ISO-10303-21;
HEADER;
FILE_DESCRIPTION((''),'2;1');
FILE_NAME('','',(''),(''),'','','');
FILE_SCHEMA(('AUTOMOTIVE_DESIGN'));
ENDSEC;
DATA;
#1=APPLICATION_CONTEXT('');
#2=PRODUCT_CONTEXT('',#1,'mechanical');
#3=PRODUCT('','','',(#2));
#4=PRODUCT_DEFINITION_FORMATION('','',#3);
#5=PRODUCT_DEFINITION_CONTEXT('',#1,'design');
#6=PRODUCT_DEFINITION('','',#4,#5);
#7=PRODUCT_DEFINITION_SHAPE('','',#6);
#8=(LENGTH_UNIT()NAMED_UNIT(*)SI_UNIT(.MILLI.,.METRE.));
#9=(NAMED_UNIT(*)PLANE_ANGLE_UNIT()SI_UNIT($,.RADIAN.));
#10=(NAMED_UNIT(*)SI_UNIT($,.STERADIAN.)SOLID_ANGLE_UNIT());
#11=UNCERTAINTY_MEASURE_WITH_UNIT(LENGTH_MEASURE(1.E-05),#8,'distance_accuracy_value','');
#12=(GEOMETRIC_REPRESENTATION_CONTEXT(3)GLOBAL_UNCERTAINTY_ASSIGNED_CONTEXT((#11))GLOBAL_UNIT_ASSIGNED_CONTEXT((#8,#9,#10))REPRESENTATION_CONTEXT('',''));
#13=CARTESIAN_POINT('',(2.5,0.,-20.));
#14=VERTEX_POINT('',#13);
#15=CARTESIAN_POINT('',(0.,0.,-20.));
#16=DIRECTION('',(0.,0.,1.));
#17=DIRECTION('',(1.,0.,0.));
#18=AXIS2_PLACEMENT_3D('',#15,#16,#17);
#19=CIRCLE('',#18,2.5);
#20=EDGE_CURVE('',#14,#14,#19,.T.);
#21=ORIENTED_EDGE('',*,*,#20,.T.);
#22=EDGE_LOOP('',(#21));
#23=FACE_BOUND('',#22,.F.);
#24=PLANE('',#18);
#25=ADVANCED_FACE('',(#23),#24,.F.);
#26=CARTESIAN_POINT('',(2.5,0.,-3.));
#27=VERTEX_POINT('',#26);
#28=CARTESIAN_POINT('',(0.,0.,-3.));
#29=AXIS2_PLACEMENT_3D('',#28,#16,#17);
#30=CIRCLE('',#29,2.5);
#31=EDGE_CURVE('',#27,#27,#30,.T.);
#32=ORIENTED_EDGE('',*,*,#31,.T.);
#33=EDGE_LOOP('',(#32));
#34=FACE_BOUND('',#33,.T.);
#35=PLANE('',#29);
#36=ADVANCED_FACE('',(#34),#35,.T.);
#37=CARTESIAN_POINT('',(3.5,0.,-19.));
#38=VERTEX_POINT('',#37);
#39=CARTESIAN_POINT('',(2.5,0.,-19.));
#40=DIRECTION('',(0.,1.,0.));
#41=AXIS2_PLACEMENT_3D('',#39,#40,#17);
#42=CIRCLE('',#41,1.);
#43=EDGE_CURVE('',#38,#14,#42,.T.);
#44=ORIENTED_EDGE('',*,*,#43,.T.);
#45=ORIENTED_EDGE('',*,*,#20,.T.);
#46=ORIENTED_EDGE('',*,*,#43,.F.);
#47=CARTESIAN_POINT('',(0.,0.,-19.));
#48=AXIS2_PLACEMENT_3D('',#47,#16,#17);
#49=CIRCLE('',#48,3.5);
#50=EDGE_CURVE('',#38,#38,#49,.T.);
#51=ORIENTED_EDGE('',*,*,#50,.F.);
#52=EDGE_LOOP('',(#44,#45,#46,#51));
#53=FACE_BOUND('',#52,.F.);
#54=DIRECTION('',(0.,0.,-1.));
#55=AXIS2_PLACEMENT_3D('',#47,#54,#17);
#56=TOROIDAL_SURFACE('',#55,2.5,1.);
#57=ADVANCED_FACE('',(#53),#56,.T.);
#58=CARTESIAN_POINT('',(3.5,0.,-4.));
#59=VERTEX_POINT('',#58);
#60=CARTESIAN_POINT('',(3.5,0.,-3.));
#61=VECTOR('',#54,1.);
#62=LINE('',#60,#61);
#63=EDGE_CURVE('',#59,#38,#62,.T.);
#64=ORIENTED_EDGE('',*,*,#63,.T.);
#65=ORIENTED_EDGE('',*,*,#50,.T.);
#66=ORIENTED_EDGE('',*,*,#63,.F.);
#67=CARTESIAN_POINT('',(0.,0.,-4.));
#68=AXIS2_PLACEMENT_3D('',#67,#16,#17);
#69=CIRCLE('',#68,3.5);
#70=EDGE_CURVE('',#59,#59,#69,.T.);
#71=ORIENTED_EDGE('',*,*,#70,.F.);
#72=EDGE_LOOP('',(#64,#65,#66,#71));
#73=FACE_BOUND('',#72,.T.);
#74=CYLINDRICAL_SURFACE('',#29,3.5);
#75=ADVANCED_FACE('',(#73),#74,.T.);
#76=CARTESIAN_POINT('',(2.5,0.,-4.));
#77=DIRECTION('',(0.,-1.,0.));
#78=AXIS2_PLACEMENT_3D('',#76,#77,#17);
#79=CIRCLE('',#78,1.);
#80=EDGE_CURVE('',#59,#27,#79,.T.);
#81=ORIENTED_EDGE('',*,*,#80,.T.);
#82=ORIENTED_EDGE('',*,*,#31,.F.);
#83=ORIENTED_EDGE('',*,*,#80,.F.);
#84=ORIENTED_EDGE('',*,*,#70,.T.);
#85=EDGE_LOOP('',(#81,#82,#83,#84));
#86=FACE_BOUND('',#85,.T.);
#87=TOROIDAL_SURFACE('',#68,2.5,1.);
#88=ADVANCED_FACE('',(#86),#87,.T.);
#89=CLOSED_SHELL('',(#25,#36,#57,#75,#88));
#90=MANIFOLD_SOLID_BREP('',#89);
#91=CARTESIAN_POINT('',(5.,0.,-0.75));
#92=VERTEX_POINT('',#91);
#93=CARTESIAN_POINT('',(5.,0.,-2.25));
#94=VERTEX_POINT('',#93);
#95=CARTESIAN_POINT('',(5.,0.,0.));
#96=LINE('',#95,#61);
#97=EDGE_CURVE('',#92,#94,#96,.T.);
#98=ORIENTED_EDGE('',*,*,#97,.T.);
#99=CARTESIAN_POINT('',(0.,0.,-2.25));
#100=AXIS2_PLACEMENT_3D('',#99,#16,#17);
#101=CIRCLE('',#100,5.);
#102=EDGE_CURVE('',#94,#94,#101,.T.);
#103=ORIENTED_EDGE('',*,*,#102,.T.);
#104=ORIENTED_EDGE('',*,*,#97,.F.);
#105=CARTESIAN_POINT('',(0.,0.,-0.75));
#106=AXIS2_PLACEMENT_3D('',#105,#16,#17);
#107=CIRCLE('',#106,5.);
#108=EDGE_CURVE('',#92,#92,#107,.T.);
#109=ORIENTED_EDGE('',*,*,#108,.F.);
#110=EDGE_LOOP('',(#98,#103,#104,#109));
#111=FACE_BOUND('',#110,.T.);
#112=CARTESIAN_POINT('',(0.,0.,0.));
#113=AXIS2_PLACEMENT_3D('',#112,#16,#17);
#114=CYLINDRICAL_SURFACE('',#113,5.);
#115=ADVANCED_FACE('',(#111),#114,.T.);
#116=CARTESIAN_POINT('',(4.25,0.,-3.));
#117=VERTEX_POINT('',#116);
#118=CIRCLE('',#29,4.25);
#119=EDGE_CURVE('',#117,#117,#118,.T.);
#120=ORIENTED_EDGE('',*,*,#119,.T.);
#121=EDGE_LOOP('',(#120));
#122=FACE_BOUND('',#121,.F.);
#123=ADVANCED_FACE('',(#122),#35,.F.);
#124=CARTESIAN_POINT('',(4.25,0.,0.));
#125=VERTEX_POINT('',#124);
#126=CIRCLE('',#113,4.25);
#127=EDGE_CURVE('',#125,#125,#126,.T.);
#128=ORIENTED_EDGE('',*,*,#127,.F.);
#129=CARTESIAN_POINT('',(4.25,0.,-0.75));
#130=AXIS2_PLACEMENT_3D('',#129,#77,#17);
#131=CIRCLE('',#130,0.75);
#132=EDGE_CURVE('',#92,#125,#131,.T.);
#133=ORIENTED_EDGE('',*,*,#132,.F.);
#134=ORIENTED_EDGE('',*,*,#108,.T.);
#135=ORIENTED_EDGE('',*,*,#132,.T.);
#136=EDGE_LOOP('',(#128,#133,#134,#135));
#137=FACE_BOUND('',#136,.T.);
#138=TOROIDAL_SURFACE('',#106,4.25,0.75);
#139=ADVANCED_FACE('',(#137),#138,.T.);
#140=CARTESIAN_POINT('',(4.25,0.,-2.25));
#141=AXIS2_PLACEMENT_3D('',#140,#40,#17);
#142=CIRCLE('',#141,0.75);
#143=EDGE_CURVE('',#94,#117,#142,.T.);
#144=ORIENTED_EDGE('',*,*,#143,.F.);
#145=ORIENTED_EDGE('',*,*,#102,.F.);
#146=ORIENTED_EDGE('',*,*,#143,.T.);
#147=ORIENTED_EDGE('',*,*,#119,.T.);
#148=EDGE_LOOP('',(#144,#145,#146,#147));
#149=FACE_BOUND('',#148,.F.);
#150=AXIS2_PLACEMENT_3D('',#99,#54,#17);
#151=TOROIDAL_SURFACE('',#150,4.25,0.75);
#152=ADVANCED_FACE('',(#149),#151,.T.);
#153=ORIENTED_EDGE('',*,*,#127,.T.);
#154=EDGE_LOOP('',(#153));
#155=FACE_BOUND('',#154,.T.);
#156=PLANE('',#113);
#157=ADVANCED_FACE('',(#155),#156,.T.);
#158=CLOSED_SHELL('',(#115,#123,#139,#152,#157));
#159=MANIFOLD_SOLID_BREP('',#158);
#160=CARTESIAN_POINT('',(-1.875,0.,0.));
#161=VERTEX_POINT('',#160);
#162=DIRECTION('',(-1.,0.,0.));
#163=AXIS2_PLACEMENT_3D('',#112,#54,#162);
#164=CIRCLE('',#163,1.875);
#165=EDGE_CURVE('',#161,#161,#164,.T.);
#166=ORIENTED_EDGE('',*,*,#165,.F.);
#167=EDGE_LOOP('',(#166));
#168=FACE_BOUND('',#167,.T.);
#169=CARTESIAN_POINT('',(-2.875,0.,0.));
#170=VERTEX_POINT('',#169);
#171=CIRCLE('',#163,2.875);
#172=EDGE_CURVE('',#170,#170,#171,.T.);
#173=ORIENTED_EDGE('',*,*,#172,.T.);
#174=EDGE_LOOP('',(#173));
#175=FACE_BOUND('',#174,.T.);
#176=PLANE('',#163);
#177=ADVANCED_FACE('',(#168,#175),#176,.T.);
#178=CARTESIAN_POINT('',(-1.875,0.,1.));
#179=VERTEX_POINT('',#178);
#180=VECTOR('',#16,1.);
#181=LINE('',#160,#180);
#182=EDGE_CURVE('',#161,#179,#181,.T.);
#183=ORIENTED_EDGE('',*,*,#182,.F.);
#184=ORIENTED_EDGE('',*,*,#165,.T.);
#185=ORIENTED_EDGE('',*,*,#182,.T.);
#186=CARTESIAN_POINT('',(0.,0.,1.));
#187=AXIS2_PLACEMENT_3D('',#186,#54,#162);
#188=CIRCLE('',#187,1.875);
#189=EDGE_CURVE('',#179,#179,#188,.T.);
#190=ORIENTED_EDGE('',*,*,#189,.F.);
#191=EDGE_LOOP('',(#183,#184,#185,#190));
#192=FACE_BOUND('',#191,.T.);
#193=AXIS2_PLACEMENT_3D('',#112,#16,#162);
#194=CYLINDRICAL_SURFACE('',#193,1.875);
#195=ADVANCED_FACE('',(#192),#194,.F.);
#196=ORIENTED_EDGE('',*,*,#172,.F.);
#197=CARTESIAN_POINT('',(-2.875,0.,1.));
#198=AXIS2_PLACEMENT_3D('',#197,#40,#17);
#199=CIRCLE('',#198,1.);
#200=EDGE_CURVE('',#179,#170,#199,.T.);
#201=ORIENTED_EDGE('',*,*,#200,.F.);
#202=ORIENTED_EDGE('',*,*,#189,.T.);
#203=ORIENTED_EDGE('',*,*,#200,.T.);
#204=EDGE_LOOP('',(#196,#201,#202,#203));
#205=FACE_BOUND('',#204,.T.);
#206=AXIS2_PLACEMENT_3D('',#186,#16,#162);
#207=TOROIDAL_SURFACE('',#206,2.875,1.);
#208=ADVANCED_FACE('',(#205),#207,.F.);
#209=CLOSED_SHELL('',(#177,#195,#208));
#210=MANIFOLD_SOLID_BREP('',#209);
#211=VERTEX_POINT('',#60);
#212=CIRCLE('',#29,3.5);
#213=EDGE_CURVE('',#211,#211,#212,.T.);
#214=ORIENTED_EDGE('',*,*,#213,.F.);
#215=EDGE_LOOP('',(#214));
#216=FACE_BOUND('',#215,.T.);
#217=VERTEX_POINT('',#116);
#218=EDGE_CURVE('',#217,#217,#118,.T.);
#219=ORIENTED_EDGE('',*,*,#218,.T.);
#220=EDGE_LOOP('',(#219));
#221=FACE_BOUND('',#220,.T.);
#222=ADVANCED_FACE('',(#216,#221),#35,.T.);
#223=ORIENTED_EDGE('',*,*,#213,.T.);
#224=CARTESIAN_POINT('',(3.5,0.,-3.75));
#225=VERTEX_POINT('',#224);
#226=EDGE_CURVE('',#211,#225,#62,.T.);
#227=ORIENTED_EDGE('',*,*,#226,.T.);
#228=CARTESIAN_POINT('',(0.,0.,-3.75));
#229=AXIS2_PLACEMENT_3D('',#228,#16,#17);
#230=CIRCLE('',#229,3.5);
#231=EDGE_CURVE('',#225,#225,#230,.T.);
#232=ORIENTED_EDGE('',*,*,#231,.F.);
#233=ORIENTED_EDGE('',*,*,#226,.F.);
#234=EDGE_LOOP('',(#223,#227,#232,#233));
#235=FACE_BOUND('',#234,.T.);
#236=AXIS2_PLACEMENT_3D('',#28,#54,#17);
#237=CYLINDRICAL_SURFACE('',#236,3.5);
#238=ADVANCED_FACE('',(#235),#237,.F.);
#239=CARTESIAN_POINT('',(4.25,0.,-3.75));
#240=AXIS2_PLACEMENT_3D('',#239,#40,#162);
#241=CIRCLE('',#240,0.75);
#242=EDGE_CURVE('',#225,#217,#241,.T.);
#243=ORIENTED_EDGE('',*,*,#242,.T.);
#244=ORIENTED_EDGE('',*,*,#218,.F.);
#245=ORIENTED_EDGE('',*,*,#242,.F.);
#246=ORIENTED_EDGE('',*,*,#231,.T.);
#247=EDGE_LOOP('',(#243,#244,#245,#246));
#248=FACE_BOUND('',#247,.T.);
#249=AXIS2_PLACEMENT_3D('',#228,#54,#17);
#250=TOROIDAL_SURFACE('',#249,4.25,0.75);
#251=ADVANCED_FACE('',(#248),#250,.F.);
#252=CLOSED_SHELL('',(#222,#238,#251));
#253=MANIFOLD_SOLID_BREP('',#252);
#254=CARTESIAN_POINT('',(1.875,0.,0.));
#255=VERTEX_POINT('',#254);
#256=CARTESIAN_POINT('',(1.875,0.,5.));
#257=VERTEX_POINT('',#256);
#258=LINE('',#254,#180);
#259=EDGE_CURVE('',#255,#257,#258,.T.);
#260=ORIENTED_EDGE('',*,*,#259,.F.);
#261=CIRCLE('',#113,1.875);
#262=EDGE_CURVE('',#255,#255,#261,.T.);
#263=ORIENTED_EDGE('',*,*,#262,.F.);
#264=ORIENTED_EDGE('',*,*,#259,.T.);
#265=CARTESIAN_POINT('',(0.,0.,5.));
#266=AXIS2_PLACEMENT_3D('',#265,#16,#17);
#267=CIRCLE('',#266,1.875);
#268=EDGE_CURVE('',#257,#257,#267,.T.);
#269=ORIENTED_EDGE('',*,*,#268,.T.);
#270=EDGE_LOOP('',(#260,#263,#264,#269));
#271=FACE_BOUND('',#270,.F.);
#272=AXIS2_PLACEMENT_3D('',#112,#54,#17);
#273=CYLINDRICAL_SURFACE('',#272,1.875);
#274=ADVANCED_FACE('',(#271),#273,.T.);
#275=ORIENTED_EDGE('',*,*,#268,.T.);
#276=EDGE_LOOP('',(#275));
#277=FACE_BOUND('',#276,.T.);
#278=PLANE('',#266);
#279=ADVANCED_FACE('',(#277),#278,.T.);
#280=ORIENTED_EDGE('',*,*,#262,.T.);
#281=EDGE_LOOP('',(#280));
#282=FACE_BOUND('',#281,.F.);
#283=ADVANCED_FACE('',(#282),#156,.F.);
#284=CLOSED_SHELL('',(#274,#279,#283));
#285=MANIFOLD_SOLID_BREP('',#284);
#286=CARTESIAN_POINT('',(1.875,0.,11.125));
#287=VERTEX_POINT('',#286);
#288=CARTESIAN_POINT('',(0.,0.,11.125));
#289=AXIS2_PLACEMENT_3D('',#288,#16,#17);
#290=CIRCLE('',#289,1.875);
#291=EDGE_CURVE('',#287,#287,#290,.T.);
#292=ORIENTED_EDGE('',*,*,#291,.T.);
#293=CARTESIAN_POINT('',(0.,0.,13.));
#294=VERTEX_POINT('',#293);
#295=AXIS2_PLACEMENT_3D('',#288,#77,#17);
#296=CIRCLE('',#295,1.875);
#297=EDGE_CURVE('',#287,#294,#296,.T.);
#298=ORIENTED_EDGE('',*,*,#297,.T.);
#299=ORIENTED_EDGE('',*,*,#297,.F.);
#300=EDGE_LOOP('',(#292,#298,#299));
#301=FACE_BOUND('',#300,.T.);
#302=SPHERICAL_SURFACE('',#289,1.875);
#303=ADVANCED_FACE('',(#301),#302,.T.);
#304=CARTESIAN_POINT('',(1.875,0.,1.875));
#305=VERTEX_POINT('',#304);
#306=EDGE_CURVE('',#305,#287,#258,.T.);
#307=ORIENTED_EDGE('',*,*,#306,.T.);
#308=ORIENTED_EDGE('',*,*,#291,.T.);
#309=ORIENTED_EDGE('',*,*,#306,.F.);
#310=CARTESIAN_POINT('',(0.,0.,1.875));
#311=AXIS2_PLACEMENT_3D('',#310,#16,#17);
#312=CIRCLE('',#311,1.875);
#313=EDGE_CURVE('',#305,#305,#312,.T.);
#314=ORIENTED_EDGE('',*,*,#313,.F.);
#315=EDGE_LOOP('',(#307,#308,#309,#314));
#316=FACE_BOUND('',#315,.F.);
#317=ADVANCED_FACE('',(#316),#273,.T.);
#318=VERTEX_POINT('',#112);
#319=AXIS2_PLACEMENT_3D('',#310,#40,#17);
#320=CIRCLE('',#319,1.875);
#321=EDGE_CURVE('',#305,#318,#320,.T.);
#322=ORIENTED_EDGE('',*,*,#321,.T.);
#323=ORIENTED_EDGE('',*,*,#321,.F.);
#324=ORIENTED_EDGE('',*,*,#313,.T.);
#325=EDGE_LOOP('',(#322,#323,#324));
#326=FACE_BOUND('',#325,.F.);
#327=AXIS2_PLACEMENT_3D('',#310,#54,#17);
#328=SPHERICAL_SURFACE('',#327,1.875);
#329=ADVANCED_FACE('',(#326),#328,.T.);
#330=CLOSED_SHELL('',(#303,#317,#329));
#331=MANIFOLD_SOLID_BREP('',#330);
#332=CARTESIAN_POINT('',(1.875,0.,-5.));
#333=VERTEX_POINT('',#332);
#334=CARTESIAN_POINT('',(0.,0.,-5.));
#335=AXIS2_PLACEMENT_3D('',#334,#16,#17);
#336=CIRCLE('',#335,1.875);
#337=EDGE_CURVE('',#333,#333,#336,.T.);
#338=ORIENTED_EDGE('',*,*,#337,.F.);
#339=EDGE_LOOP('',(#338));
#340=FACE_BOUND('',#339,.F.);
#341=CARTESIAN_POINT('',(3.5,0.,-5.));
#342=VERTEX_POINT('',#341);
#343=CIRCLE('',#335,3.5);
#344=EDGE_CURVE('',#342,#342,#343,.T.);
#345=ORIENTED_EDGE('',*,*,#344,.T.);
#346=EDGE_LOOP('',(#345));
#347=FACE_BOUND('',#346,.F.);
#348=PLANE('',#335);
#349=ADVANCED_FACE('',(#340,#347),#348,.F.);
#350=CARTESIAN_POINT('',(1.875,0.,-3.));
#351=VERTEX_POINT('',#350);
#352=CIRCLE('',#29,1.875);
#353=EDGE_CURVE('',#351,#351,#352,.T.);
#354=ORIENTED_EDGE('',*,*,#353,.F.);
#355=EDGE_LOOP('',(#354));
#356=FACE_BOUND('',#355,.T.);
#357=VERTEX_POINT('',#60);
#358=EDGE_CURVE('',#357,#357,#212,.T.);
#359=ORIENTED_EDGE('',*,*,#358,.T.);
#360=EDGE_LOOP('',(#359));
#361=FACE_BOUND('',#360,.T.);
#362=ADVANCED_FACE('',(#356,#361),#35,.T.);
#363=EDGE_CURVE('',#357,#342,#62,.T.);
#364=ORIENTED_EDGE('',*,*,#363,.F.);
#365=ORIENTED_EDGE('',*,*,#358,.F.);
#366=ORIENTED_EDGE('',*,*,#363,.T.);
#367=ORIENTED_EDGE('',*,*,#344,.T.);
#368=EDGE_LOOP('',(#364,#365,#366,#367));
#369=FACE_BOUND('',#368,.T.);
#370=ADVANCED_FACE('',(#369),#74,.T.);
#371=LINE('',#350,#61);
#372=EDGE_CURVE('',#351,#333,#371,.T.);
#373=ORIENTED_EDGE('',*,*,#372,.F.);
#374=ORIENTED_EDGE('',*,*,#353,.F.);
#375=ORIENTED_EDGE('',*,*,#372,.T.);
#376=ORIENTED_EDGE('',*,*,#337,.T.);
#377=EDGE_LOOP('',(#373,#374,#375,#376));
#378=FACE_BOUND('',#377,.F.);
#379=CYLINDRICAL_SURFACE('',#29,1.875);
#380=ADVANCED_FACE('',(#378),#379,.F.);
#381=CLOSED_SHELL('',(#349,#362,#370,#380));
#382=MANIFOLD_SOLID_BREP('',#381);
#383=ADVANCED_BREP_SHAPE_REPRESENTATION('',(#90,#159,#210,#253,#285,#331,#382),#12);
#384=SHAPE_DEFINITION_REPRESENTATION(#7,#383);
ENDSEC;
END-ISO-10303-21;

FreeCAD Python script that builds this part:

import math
import FreeCAD as App
import Part
import Sketcher
Q = App.Units.Quantity

doc = App.newDocument("Part")
body = doc.addObject("PartDesign::Body", "Body")

# Sketch on XY plane
sketch1 = body.newObject("Sketcher::SketchObject", "Sketch")
sketch1.AttachmentSupport = (doc.getObject("XY_Plane"), [""])
sketch1.MapMode = "FlatFace"
sketch1.addGeometry(Part.Circle(App.Vector(0, 0, 0), App.Vector(0, 0, 1), 1.9), False)
sketch1.addConstraint([
    Sketcher.Constraint("Coincident", 0, 3, -1, 1),
    Sketcher.Constraint("Diameter", 0, Q("3.75 mm")),
])
pad1 = body.newObject("PartDesign::Pad", "Pad")
pad1.Profile = sketch1
pad1.Length = 13
doc.recompute()

fillet = body.newObject("PartDesign::Fillet", "Fillet")
fillet.Base = (pad1, ["Edge1"])
fillet.UseAllEdges = True
fillet.Radius = 1.875
body2 = doc.addObject("PartDesign::Body", "Body001")

# Sketch on XY plane
sketch2 = body2.newObject("Sketcher::SketchObject", "Sketch001")
sketch2.AttachmentSupport = (doc.getObject("XY_Plane001"), [""])
sketch2.MapMode = "FlatFace"
sketch2.AttachmentOffset = App.Placement(App.Vector(0, 0, -3), App.Rotation())
sketch2.addGeometry(Part.Circle(App.Vector(0, 0, 0), App.Vector(0, 0, 1), 3.5), False)
sketch2.addConstraint([
    Sketcher.Constraint("Coincident", 0, 3, -1, 1),
    Sketcher.Constraint("Diameter", 0, Q("7 mm")),
])
pad2 = body2.newObject("PartDesign::Pad", "Pad001")
pad2.Profile = sketch2
pad2.Length = 17
pad2.Reversed = True
doc.recompute()

fillet2 = body2.newObject("PartDesign::Fillet", "Fillet001")
fillet2.Base = (pad2, ["Edge1"])
fillet2.UseAllEdges = True
fillet2.Radius = 1
body3 = doc.addObject("PartDesign::Body", "Body002")

# Sketch on XY plane
sketch3 = body3.newObject("Sketcher::SketchObject", "Sketch002")
sketch3.AttachmentSupport = (doc.getObject("XY_Plane002"), [""])
sketch3.MapMode = "FlatFace"
sketch3.addGeometry(Part.Circle(App.Vector(0, 0, 0), App.Vector(0, 0, 1), 5), False)
sketch3.addConstraint([
    Sketcher.Constraint("Coincident", 0, 3, -1, 1),
    Sketcher.Constraint("Diameter", 0, Q("10 mm")),
])
pad3 = body3.newObject("PartDesign::Pad", "Pad002")
pad3.Profile = sketch3
pad3.Length = 3
pad3.Reversed = True
doc.recompute()

fillet3 = body3.newObject("PartDesign::Fillet", "Fillet002")
fillet3.Base = (pad3, ["Edge1"])
fillet3.UseAllEdges = True
fillet3.Radius = 0.75
body4 = doc.addObject("PartDesign::Body", "Body003")

# Sketch on XY plane
sketch4 = body4.newObject("Sketcher::SketchObject", "Sketch003")
sketch4.AttachmentSupport = (doc.getObject("XY_Plane003"), [""])
sketch4.MapMode = "FlatFace"
sketch4.addGeometry(Part.Circle(App.Vector(0, 0, 0), App.Vector(0, 0, 1), 1.9), False)
sketch4.addConstraint([
    Sketcher.Constraint("Coincident", 0, 3, -1, 1),
    Sketcher.Constraint("Diameter", 0, Q("3.75 mm")),
])
pad4 = body4.newObject("PartDesign::Pad", "Pad003")
pad4.Profile = sketch4
pad4.Length = 5
body5 = doc.addObject("PartDesign::Body", "Body004")

# Sketch on XZ plane
sketch5 = body5.newObject("Sketcher::SketchObject", "Sketch004")
sketch5.AttachmentSupport = (doc.getObject("XZ_Plane004"), [""])
sketch5.MapMode = "FlatFace"
sketch5.addGeometry([
    Part.LineSegment(App.Vector(-1.9, 0, 0), App.Vector(-1.9, 1, 0)),
    Part.ArcOfCircle(Part.Circle(App.Vector(-2.9, 1, 0), App.Vector(0, 0, 1), 1), math.radians(-90), math.radians(0)),
    Part.LineSegment(App.Vector(-2.9, 0, 0), App.Vector(-1.9, 0, 0)),
], False)
sketch5.addConstraint([
    Sketcher.Constraint("Tangent", 0, 2, 1, 2),
    Sketcher.Constraint("Tangent", 1, 1, 2, 1),
    Sketcher.Constraint("Coincident", 2, 2, 0, 1),
    Sketcher.Constraint("Vertical", 0),
    Sketcher.Constraint("Horizontal", 2),
    Sketcher.Constraint("PointOnObject", 1, 1, -1),
    Sketcher.Constraint("Radius", 1, Q("1 mm")),
    Sketcher.Constraint("DistanceX", 1, 3, -1, 1, Q("2.875 mm")),
])
revolution = body5.newObject("PartDesign::Revolution", "Revolution")
revolution.Profile = sketch5
revolution.ReferenceAxis = (sketch5, ["V_Axis"])
revolution.Angle = 360
body6 = doc.addObject("PartDesign::Body", "Body005")

# Sketch on XY plane
sketch6 = body6.newObject("Sketcher::SketchObject", "Sketch005")
sketch6.AttachmentSupport = (doc.getObject("XY_Plane005"), [""])
sketch6.MapMode = "FlatFace"
sketch6.AttachmentOffset = App.Placement(App.Vector(0, 0, -3), App.Rotation())
sketch6.addGeometry([
    Part.Circle(App.Vector(0, 0, 0), App.Vector(0, 0, 1), 3.5),
    Part.Circle(App.Vector(0, 0, 0), App.Vector(0, 0, 1), 1.9),
], False)
sketch6.addConstraint([
    Sketcher.Constraint("Coincident", 0, 3, -1, 1),
    Sketcher.Constraint("Coincident", 1, 3, -1, 1),
    Sketcher.Constraint("Diameter", 0, Q("7 mm")),
    Sketcher.Constraint("Diameter", 1, Q("3.75 mm")),
])
pad5 = body6.newObject("PartDesign::Pad", "Pad004")
pad5.Profile = sketch6
pad5.Length = 2
pad5.Reversed = True
body7 = doc.addObject("PartDesign::Body", "Body006")

# Sketch on XZ plane
sketch7 = body7.newObject("Sketcher::SketchObject", "Sketch006")
sketch7.AttachmentSupport = (doc.getObject("XZ_Plane006"), [""])
sketch7.MapMode = "FlatFace"
sketch7.addGeometry([
    Part.ArcOfCircle(Part.Circle(App.Vector(4.2, -3.8, 0), App.Vector(0, 0, 1), 0.8), math.radians(90), math.radians(180)),
    Part.LineSegment(App.Vector(4.2, -3, 0), App.Vector(3.5, -3, 0)),
    Part.LineSegment(App.Vector(3.5, -3, 0), App.Vector(3.5, -3.8, 0)),
], False)
sketch7.addConstraint([
    Sketcher.Constraint("Tangent", 0, 1, 1, 1),
    Sketcher.Constraint("Coincident", 1, 2, 2, 1),
    Sketcher.Constraint("Tangent", 2, 2, 0, 2),
    Sketcher.Constraint("Horizontal", 1),
    Sketcher.Constraint("Vertical", 2),
    Sketcher.Constraint("Radius", 0, Q("0.75 mm")),
    Sketcher.Constraint("DistanceY", 0, 1, -1, 1, Q("3 mm")),
    Sketcher.Constraint("DistanceX", -1, 1, 1, 2, Q("3.5 mm")),
])
revolution2 = body7.newObject("PartDesign::Revolution", "Revolution001")
revolution2.Profile = sketch7
revolution2.ReferenceAxis = (sketch7, ["V_Axis"])
revolution2.Angle = 360

doc.recompute()
